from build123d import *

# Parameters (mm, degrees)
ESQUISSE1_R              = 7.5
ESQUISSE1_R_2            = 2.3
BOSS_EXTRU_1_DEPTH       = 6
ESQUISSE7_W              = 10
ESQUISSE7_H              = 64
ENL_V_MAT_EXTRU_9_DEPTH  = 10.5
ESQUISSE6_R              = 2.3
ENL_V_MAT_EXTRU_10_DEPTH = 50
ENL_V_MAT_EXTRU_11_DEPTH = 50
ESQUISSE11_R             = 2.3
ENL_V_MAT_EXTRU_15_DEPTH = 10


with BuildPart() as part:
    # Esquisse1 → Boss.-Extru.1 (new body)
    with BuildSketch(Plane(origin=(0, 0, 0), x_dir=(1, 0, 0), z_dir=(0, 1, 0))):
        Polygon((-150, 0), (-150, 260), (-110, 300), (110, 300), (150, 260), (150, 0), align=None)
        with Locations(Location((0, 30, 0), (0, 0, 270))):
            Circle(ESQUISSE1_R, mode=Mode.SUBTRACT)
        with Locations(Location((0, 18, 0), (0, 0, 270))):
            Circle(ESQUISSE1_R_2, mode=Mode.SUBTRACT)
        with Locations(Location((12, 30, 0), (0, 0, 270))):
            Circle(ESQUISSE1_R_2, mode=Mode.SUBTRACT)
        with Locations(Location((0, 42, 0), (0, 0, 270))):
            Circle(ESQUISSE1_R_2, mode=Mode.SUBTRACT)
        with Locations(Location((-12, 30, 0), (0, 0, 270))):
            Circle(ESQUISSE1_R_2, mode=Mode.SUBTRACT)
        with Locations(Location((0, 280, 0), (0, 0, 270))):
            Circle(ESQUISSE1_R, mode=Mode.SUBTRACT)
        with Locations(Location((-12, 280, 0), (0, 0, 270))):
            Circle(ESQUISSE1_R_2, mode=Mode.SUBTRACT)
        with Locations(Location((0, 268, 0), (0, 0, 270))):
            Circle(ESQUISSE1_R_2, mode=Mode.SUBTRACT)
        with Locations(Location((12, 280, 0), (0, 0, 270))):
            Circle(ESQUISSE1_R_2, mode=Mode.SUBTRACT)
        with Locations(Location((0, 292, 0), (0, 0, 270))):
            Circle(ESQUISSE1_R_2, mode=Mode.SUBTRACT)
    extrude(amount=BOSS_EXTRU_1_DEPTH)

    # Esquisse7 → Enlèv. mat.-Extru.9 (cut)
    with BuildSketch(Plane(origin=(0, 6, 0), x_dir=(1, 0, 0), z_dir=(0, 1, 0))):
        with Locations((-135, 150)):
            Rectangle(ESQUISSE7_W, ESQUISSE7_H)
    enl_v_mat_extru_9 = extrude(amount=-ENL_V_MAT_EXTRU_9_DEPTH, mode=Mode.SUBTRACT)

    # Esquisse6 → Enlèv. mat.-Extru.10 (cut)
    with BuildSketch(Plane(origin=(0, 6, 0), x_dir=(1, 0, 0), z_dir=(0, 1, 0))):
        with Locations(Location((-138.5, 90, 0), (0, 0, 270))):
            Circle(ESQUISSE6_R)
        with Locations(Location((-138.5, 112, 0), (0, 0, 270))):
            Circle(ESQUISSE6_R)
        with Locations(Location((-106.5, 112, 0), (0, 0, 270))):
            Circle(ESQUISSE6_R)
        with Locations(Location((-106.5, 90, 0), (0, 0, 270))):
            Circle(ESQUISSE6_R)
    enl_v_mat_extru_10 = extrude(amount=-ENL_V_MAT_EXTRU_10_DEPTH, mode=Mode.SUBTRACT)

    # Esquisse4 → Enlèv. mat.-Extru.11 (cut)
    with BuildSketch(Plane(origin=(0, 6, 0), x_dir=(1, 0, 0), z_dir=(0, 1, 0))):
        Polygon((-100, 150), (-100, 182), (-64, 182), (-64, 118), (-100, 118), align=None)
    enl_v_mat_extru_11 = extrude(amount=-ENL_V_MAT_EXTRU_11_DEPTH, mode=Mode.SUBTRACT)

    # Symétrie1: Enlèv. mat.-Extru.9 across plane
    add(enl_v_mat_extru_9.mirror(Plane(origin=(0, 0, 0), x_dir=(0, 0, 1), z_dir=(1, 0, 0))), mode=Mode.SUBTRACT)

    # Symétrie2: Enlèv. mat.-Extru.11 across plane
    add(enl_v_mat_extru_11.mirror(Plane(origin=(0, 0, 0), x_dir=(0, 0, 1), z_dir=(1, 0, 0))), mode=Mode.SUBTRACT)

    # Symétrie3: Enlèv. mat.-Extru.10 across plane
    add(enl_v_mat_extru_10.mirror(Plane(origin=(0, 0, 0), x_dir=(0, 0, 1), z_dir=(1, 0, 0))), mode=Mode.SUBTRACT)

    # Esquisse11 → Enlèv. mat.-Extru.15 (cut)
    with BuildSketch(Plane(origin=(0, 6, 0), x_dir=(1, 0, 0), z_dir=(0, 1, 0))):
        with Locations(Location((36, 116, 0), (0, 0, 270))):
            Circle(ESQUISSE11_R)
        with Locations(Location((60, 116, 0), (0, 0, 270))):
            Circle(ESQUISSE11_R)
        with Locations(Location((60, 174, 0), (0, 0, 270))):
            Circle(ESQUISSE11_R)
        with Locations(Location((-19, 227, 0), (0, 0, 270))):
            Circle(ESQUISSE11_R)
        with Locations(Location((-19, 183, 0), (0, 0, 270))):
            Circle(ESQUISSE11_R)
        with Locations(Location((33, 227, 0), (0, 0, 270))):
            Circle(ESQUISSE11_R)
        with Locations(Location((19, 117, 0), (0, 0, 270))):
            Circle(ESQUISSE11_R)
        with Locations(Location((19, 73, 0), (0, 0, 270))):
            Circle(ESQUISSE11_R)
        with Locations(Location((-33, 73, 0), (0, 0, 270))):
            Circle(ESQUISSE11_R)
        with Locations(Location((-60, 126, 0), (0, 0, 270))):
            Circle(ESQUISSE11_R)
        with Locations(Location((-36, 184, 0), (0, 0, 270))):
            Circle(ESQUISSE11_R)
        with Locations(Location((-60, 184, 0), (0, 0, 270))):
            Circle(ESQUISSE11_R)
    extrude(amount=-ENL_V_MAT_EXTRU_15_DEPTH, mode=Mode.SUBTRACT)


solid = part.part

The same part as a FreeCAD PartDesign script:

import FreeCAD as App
import Part
import Sketcher

V = App.Vector
Q = App.Units.Quantity

doc = App.newDocument("Part")
body = doc.addObject("PartDesign::Body", "Body")

# Sketch on XZ plane
sketch1 = body.newObject("Sketcher::SketchObject", "Sketch")
sketch1.AttachmentSupport = (doc.getObject("XZ_Plane"), [""])
sketch1.MapMode = "FlatFace"
sketch1.addGeometry(Part.LineSegment(V(-150, -260, 0), V(-150, 0, 0)), False)
sketch1.addGeometry(Part.LineSegment(V(-150, 0, 0), V(150, 0, 0)), False)
sketch1.addGeometry(Part.LineSegment(V(150, 0, 0), V(150, -260, 0)), False)
sketch1.addGeometry(Part.LineSegment(V(150, -260, 0), V(110, -300, 0)), False)
sketch1.addGeometry(Part.LineSegment(V(110, -300, 0), V(-110, -300, 0)), False)
sketch1.addGeometry(Part.LineSegment(V(-110, -300, 0), V(-150, -260, 0)), False)
sketch1.addGeometry(Part.Circle(V(12, -30, 0), V(0, 0, 1), 2.3), False)
sketch1.addGeometry(Part.Circle(V(0, -18, 0), V(0, 0, 1), 2.3), False)
sketch1.addGeometry(Part.Circle(V(0, -30, 0), V(0, 0, 1), 7.5), False)
sketch1.addGeometry(Part.Circle(V(0, -42, 0), V(0, 0, 1), 2.3), False)
sketch1.addGeometry(Part.Circle(V(-12, -30, 0), V(0, 0, 1), 2.3), False)
sketch1.addGeometry(Part.Circle(V(12, -280, 0), V(0, 0, 1), 2.3), False)
sketch1.addGeometry(Part.Circle(V(0, -268, 0), V(0, 0, 1), 2.3), False)
sketch1.addGeometry(Part.Circle(V(0, -280, 0), V(0, 0, 1), 7.5), False)
sketch1.addGeometry(Part.Circle(V(0, -292, 0), V(0, 0, 1), 2.3), False)
sketch1.addGeometry(Part.Circle(V(-12, -280, 0), V(0, 0, 1), 2.3), False)
sketch1.addConstraint(Sketcher.Constraint("Coincident", 0, 2, 1, 1))
sketch1.addConstraint(Sketcher.Constraint("Coincident", 1, 2, 2, 1))
sketch1.addConstraint(Sketcher.Constraint("Coincident", 2, 2, 3, 1))
sketch1.addConstraint(Sketcher.Constraint("Coincident", 3, 2, 4, 1))
sketch1.addConstraint(Sketcher.Constraint("Coincident", 4, 2, 5, 1))
sketch1.addConstraint(Sketcher.Constraint("Coincident", 5, 2, 0, 1))
sketch1.addConstraint(Sketcher.Constraint("Vertical", 0))
sketch1.addConstraint(Sketcher.Constraint("Horizontal", 1))
sketch1.addConstraint(Sketcher.Constraint("Vertical", 2))
sketch1.addConstraint(Sketcher.Constraint("Horizontal", 4))
sketch1.addConstraint(Sketcher.Constraint("Equal", 6, 7))
sketch1.addConstraint(Sketcher.Constraint("Equal", 7, 9))
sketch1.addConstraint(Sketcher.Constraint("Equal", 9, 10))
sketch1.addConstraint(Sketcher.Constraint("Equal", 10, 11))
sketch1.addConstraint(Sketcher.Constraint("Equal", 11, 12))
sketch1.addConstraint(Sketcher.Constraint("Equal", 8, 13))
sketch1.addConstraint(Sketcher.Constraint("Equal", 12, 14))
sketch1.addConstraint(Sketcher.Constraint("Equal", 14, 15))
sketch1.addConstraint(Sketcher.Constraint("Symmetric", 0, 2, 1, 2, -1, 1))
sketch1.addConstraint(Sketcher.Constraint("Symmetric", 6, 3, 10, 3, -2))
sketch1.addConstraint(Sketcher.Constraint("Symmetric", 11, 3, 15, 3, -2))
sketch1.addConstraint(Sketcher.Constraint("PointOnObject", 7, 3, -2))
sketch1.addConstraint(Sketcher.Constraint("PointOnObject", 8, 3, -2))
sketch1.addConstraint(Sketcher.Constraint("PointOnObject", 9, 3, -2))
sketch1.addConstraint(Sketcher.Constraint("PointOnObject", 12, 3, -2))
sketch1.addConstraint(Sketcher.Constraint("PointOnObject", 13, 3, -2))
sketch1.addConstraint(Sketcher.Constraint("PointOnObject", 14, 3, -2))
sketch1.addConstraint(Sketcher.Constraint("Perpendicular", 3, 5))
sketch1.addConstraint(Sketcher.Constraint("Horizontal", 6, 3, 8, 3))
sketch1.addConstraint(Sketcher.Constraint("Horizontal", 11, 3, 13, 3))
sketch1.addConstraint(Sketcher.Constraint("Horizontal", 2, 2, 5, 2))
sketch1.addConstraint(Sketcher.Constraint("Vertical", 6, 3, 11, 3))
sketch1.addConstraint(Sketcher.Constraint("Equal", 3, 5))
sketch1.addConstraint(Sketcher.Constraint("Diameter", 8, Q("15 mm")))
sketch1.addConstraint(Sketcher.Constraint("Diameter", 6, Q("4.6 mm")))
sketch1.addConstraint(Sketcher.Constraint("DistanceX", 1, 1, 1, 2, Q("300 mm")))
sketch1.addConstraint(Sketcher.Constraint("DistanceX", 4, 2, 4, 1, Q("220 mm")))
sketch1.addConstraint(Sketcher.Constraint("DistanceY", 0, 1, 0, 2, Q("260 mm")))
sketch1.addConstraint(Sketcher.Constraint("DistanceX", -1, 1, 6, 3, Q("12 mm")))
sketch1.addConstraint(Sketcher.Constraint("DistanceY", 6, 3, -1, 1, Q("30 mm")))
sketch1.addConstraint(Sketcher.Constraint("DistanceY", 7, 3, -1, 1, Q("18 mm")))
sketch1.addConstraint(Sketcher.Constraint("DistanceY", 9, 3, -1, 1, Q("42 mm")))
sketch1.addConstraint(Sketcher.Constraint("DistanceY", 11, 3, -1, 1, Q("280 mm")))
sketch1.addConstraint(Sketcher.Constraint("DistanceY", 12, 3, -1, 1, Q("268 mm")))
sketch1.addConstraint(Sketcher.Constraint("DistanceY", 14, 3, -1, 1, Q("292 mm")))
pad1 = body.newObject("PartDesign::Pad", "Pad")
pad1.Profile = sketch1
pad1.Length = 6
pad1.Reversed = True

# Sketch on XZ plane
sketch2 = body.newObject("Sketcher::SketchObject", "Sketch001")
sketch2.AttachmentSupport = (doc.getObject("XZ_Plane"), [""])
sketch2.MapMode = "FlatFace"
sketch2.AttachmentOffset = App.Placement(V(0, 0, -6), App.Rotation())
sketch2.addGeometry(Part.LineSegment(V(-140, -182, 0), V(-140, -118, 0)), False)
sketch2.addGeometry(Part.LineSegment(V(-140, -118, 0), V(-130, -118, 0)), False)
sketch2.addGeometry(Part.LineSegment(V(-130, -118, 0), V(-130, -182, 0)), False)
sketch2.addGeometry(Part.LineSegment(V(-130, -182, 0), V(-140, -182, 0)), False)
sketch2.addConstraint(Sketcher.Constraint("Coincident", 0, 2, 1, 1))
sketch2.addConstraint(Sketcher.Constraint("Coincident", 1, 2, 2, 1))
sketch2.addConstraint(Sketcher.Constraint("Coincident", 2, 2, 3, 1))
sketch2.addConstraint(Sketcher.Constraint("Coincident", 3, 2, 0, 1))
sketch2.addConstraint(Sketcher.Constraint("Vertical", 0))
sketch2.addConstraint(Sketcher.Constraint("Horizontal", 1))
sketch2.addConstraint(Sketcher.Constraint("Vertical", 2))
sketch2.addConstraint(Sketcher.Constraint("Horizontal", 3))
sketch2.addConstraint(Sketcher.Constraint("DistanceX", 1, 1, 1, 2, Q("10 mm")))
sketch2.addConstraint(Sketcher.Constraint("DistanceY", 0, 1, 0, 2, Q("64 mm")))
sketch2.addConstraint(Sketcher.Constraint("DistanceX", 0, 2, -1, 1, Q("140 mm")))
sketch2.addConstraint(Sketcher.Constraint("DistanceY", 0, 2, -1, 1, Q("118 mm")))
pocket1 = body.newObject("PartDesign::Pocket", "Pocket")
pocket1.Profile = sketch2
pocket1.Length = 10.5
pocket1.Reversed = True

# Sketch on XZ plane
sketch3 = body.newObject("Sketcher::SketchObject", "Sketch002")
sketch3.AttachmentSupport = (doc.getObject("XZ_Plane"), [""])
sketch3.MapMode = "FlatFace"
sketch3.AttachmentOffset = App.Placement(V(0, 0, -6), App.Rotation())
sketch3.addGeometry(Part.Circle(V(-138.5, -90, 0), V(0, 0, 1), 2.3), False)
sketch3.addGeometry(Part.Circle(V(-138.5, -112, 0), V(0, 0, 1), 2.3), False)
sketch3.addGeometry(Part.Circle(V(-106.5, -112, 0), V(0, 0, 1), 2.3), False)
sketch3.addGeometry(Part.Circle(V(-106.5, -90, 0), V(0, 0, 1), 2.3), False)
sketch3.addConstraint(Sketcher.Constraint("Equal", 0, 1))
sketch3.addConstraint(Sketcher.Constraint("Equal", 1, 2))
sketch3.addConstraint(Sketcher.Constraint("Equal", 2, 3))
sketch3.addConstraint(Sketcher.Constraint("Horizontal", 1, 3, 2, 3))
sketch3.addConstraint(Sketcher.Constraint("Horizontal", 0, 3, 3, 3))
sketch3.addConstraint(Sketcher.Constraint("Vertical", 0, 3, 1, 3))
sketch3.addConstraint(Sketcher.Constraint("Vertical", 2, 3, 3, 3))
sketch3.addConstraint(Sketcher.Constraint("Diameter", 0, Q("4.6 mm")))
sketch3.addConstraint(Sketcher.Constraint("DistanceY", 0, 3, -1, 1, Q("90 mm")))
sketch3.addConstraint(Sketcher.Constraint("DistanceY", 1, 3, -1, 1, Q("112 mm")))
sketch3.addConstraint(Sketcher.Constraint("DistanceX", 1, 3, 2, 3, Q("32 mm")))
sketch3.addConstraint(Sketcher.Constraint("DistanceX", 0, 3, -1, 1, Q("138.5 mm")))
pocket2 = body.newObject("PartDesign::Pocket", "Pocket001")
pocket2.Profile = sketch3
pocket2.Length = 50
pocket2.Reversed = True

# Sketch on XZ plane
sketch4 = body.newObject("Sketcher::SketchObject", "Sketch003")
sketch4.AttachmentSupport = (doc.getObject("XZ_Plane"), [""])
sketch4.MapMode = "FlatFace"
sketch4.AttachmentOffset = App.Placement(V(0, 0, -6), App.Rotation())
sketch4.addGeometry(Part.LineSegment(V(-100, -182, 0), V(-100, -118, 0)), False)
sketch4.addGeometry(Part.LineSegment(V(-100, -118, 0), V(-64, -118, 0)), False)
sketch4.addGeometry(Part.LineSegment(V(-64, -118, 0), V(-64, -182, 0)), False)
sketch4.addGeometry(Part.LineSegment(V(-64, -182, 0), V(-100, -182, 0)), False)
sketch4.addConstraint(Sketcher.Constraint("Coincident", 0, 2, 1, 1))
sketch4.addConstraint(Sketcher.Constraint("Coincident", 1, 2, 2, 1))
sketch4.addConstraint(Sketcher.Constraint("Coincident", 2, 2, 3, 1))
sketch4.addConstraint(Sketcher.Constraint("Coincident", 3, 2, 0, 1))
sketch4.addConstraint(Sketcher.Constraint("Vertical", 0))
sketch4.addConstraint(Sketcher.Constraint("Horizontal", 1))
sketch4.addConstraint(Sketcher.Constraint("Vertical", 2))
sketch4.addConstraint(Sketcher.Constraint("Horizontal", 3))
sketch4.addConstraint(Sketcher.Constraint("DistanceX", 1, 1, 1, 2, Q("36 mm")))
sketch4.addConstraint(Sketcher.Constraint("DistanceY", 0, 1, 0, 2, Q("64 mm")))
sketch4.addConstraint(Sketcher.Constraint("DistanceX", 0, 2, -1, 1, Q("100 mm")))
sketch4.addConstraint(Sketcher.Constraint("DistanceY", 0, 2, -1, 1, Q("118 mm")))
pocket3 = body.newObject("PartDesign::Pocket", "Pocket002")
pocket3.Profile = sketch4
pocket3.Length = 50
pocket3.Reversed = True
doc.recompute()

mirrored = body.newObject("PartDesign::Mirrored", "Mirrored")
mirrored.Originals = [pocket1]
mirrored.MirrorPlane = (doc.getObject("YZ_Plane"), [""])
body.Tip = mirrored
doc.recompute()

mirrored2 = body.newObject("PartDesign::Mirrored", "Mirrored001")
mirrored2.Originals = [pocket3]
mirrored2.MirrorPlane = (doc.getObject("YZ_Plane"), [""])
body.Tip = mirrored2
doc.recompute()

mirrored3 = body.newObject("PartDesign::Mirrored", "Mirrored002")
mirrored3.Originals = [pocket2]
mirrored3.MirrorPlane = (doc.getObject("YZ_Plane"), [""])
body.Tip = mirrored3

# Sketch on XZ plane
sketch5 = body.newObject("Sketcher::SketchObject", "Sketch004")
sketch5.AttachmentSupport = (doc.getObject("XZ_Plane"), [""])
sketch5.MapMode = "FlatFace"
sketch5.AttachmentOffset = App.Placement(V(0, 0, -6), App.Rotation())
sketch5.addGeometry(Part.Circle(V(36, -116, 0), V(0, 0, 1), 2.3), False)
sketch5.addGeometry(Part.Circle(V(60, -116, 0), V(0, 0, 1), 2.3), False)
sketch5.addGeometry(Part.Circle(V(60, -174, 0), V(0, 0, 1), 2.3), False)
sketch5.addGeometry(Part.Circle(V(-19, -227, 0), V(0, 0, 1), 2.3), False)
sketch5.addGeometry(Part.Circle(V(-19, -183, 0), V(0, 0, 1), 2.3), False)
sketch5.addGeometry(Part.Circle(V(33, -227, 0), V(0, 0, 1), 2.3), False)
sketch5.addGeometry(Part.Circle(V(19, -117, 0), V(0, 0, 1), 2.3), False)
sketch5.addGeometry(Part.Circle(V(19, -73, 0), V(0, 0, 1), 2.3), False)
sketch5.addGeometry(Part.Circle(V(-33, -73, 0), V(0, 0, 1), 2.3), False)
sketch5.addGeometry(Part.Circle(V(-60, -126, 0), V(0, 0, 1), 2.3), False)
sketch5.addGeometry(Part.Circle(V(-36, -184, 0), V(0, 0, 1), 2.3), False)
sketch5.addGeometry(Part.Circle(V(-60, -184, 0), V(0, 0, 1), 2.3), False)
sketch5.addConstraint(Sketcher.Constraint("Equal", 0, 1))
sketch5.addConstraint(Sketcher.Constraint("Equal", 1, 2))
sketch5.addConstraint(Sketcher.Constraint("Equal", 2, 3))
sketch5.addConstraint(Sketcher.Constraint("Equal", 3, 4))
sketch5.addConstraint(Sketcher.Constraint("Equal", 4, 5))
sketch5.addConstraint(Sketcher.Constraint("Equal", 5, 6))
sketch5.addConstraint(Sketcher.Constraint("Equal", 6, 7))
sketch5.addConstraint(Sketcher.Constraint("Equal", 7, 8))
sketch5.addConstraint(Sketcher.Constraint("Equal", 8, 9))
sketch5.addConstraint(Sketcher.Constraint("Equal", 9, 10))
sketch5.addConstraint(Sketcher.Constraint("Equal", 10, 11))
sketch5.addConstraint(Sketcher.Constraint("Horizontal", 0, 3, 1, 3))
sketch5.addConstraint(Sketcher.Constraint("Horizontal", 3, 3, 5, 3))
sketch5.addConstraint(Sketcher.Constraint("Horizontal", 7, 3, 8, 3))
sketch5.addConstraint(Sketcher.Constraint("Horizontal", 10, 3, 11, 3))
sketch5.addConstraint(Sketcher.Constraint("Vertical", 1, 3, 2, 3))
sketch5.addConstraint(Sketcher.Constraint("Vertical", 3, 3, 4, 3))
sketch5.addConstraint(Sketcher.Constraint("Vertical", 6, 3, 7, 3))
sketch5.addConstraint(Sketcher.Constraint("Vertical", 9, 3, 11, 3))
sketch5.addConstraint(Sketcher.Constraint("Diameter", 0, Q("4.6 mm")))
sketch5.addConstraint(Sketcher.Constraint("DistanceX", -1, 1, 0, 3, Q("36 mm")))
sketch5.addConstraint(Sketcher.Constraint("DistanceY", 0, 3, -1, 1, Q("116 mm")))
sketch5.addConstraint(Sketcher.Constraint("DistanceX", -1, 1, 1, 3, Q("60 mm")))
sketch5.addConstraint(Sketcher.Constraint("DistanceY", 2, 3, -1, 1, Q("174 mm")))
sketch5.addConstraint(Sketcher.Constraint("DistanceX", 3, 3, -1, 1, Q("19 mm")))
sketch5.addConstraint(Sketcher.Constraint("DistanceY", 3, 3, -1, 1, Q("227 mm")))
sketch5.addConstraint(Sketcher.Constraint("DistanceY", 4, 3, -1, 1, Q("183 mm")))
sketch5.addConstraint(Sketcher.Constraint("DistanceX", -1, 1, 5, 3, Q("33 mm")))
sketch5.addConstraint(Sketcher.Constraint("DistanceX", -1, 1, 6, 3, Q("19 mm")))
sketch5.addConstraint(Sketcher.Constraint("DistanceY", 6, 3, -1, 1, Q("117 mm")))
sketch5.addConstraint(Sketcher.Constraint("DistanceY", 7, 3, -1, 1, Q("73 mm")))
sketch5.addConstraint(Sketcher.Constraint("DistanceX", 8, 3, -1, 1, Q("33 mm")))
sketch5.addConstraint(Sketcher.Constraint("DistanceX", 9, 3, -1, 1, Q("60 mm")))
sketch5.addConstraint(Sketcher.Constraint("DistanceY", 9, 3, -1, 1, Q("126 mm")))
sketch5.addConstraint(Sketcher.Constraint("DistanceX", 10, 3, -1, 1, Q("36 mm")))
sketch5.addConstraint(Sketcher.Constraint("DistanceY", 10, 3, -1, 1, Q("184 mm")))
pocket4 = body.newObject("PartDesign::Pocket", "Pocket003")
pocket4.Profile = sketch5
pocket4.Length = 10
pocket4.Reversed = True

doc.recompute()
